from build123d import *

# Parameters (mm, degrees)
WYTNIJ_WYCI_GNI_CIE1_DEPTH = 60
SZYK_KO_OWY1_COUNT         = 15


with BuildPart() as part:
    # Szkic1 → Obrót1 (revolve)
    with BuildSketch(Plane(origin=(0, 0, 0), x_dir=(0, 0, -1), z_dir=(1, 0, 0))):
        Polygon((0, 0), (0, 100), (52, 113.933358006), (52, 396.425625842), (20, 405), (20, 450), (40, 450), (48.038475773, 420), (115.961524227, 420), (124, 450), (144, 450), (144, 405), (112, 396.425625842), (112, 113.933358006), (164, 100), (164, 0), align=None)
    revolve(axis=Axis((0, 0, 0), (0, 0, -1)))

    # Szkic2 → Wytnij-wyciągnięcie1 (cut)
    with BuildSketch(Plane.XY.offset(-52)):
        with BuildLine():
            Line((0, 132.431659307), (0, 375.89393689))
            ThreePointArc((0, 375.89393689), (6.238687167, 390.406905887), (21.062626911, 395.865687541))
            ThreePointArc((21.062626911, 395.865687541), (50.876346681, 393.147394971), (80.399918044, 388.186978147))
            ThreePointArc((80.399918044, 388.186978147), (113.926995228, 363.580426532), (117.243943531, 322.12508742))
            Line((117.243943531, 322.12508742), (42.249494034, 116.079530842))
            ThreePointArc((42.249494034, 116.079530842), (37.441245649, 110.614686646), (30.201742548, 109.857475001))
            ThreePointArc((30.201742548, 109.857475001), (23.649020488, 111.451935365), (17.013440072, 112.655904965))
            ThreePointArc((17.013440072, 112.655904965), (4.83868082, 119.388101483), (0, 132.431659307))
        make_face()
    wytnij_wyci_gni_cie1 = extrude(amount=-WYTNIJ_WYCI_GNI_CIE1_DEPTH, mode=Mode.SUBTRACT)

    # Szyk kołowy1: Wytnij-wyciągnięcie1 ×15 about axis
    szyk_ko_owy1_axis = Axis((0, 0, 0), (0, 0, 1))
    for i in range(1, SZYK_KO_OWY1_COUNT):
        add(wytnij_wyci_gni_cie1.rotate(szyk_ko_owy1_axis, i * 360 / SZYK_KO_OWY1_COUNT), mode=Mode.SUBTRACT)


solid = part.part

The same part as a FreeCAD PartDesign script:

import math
import FreeCAD as App
import Part
import Sketcher
Q = App.Units.Quantity


def add_polygon(sketch, points):
    """Adds a closed chain of lines whose ends are joined by coincident constraints."""
    first, n = sketch.GeometryCount, len(points)
    for a, b in zip(points, points[1:] + points[:1]):
        sketch.addGeometry(Part.LineSegment(App.Vector(*a, 0), App.Vector(*b, 0)), False)
    for i in range(n):
        sketch.addConstraint(Sketcher.Constraint("Coincident", first + i, 2, first + (i + 1) % n, 1))

doc = App.newDocument("Part")
body = doc.addObject("PartDesign::Body", "Body")

# Sketch on YZ plane
sketch1 = body.newObject("Sketcher::SketchObject", "Sketch")
sketch1.AttachmentSupport = (doc.getObject("YZ_Plane"), [""])
sketch1.MapMode = "FlatFace"
add_polygon(sketch1, [(100, 0), (0, 0), (0, -164), (100, -164), (114, -112), (396, -112), (405, -144), (450, -144), (450, -124), (420, -116), (420, -48), (450, -40), (450, -20), (405, -20), (396, -52), (114, -52)])  # lines 0-15
sketch1.addConstraint(Sketcher.Constraint("Horizontal", 0))
sketch1.addConstraint(Sketcher.Constraint("Vertical", 1))
sketch1.addConstraint(Sketcher.Constraint("Horizontal", 2))
sketch1.addConstraint(Sketcher.Constraint("Horizontal", 4))
sketch1.addConstraint(Sketcher.Constraint("Horizontal", 6))
sketch1.addConstraint(Sketcher.Constraint("Vertical", 7))
sketch1.addConstraint(Sketcher.Constraint("Vertical", 9))
sketch1.addConstraint(Sketcher.Constraint("Vertical", 11))
sketch1.addConstraint(Sketcher.Constraint("Horizontal", 12))
sketch1.addConstraint(Sketcher.Constraint("Horizontal", 14))
sketch1.addConstraint(Sketcher.Constraint("Coincident", 0, 2, -1, 1))
sketch1.addConstraint(Sketcher.Constraint("Perpendicular", 3, 8))
sketch1.addConstraint(Sketcher.Constraint("Perpendicular", 5, 10))
sketch1.addConstraint(Sketcher.Constraint("Perpendicular", 8, 13))
sketch1.addConstraint(Sketcher.Constraint("Perpendicular", 10, 15))
sketch1.addConstraint(Sketcher.Constraint("Vertical", 7, 2, 10, 2))
sketch1.addConstraint(Sketcher.Constraint("Vertical", 5, 2, 12, 2))
sketch1.addConstraint(Sketcher.Constraint("Vertical", 4, 2, 13, 2))
sketch1.addConstraint(Sketcher.Constraint("Vertical", 3, 2, 14, 2))
sketch1.addConstraint(Sketcher.Constraint("Vertical", 2, 2, 15, 2))
sketch1.addConstraint(Sketcher.Constraint("Equal", 7, 11))
sketch1.addConstraint(Sketcher.Constraint("Equal", 8, 10))
sketch1.addConstraint(Sketcher.Constraint("DistanceX", 0, 2, 0, 1, Q("100 mm")))
sketch1.addConstraint(Sketcher.Constraint("DistanceX", 6, 1, 6, 2, Q("45 mm")))
sketch1.addConstraint(Sketcher.Constraint("DistanceY", 1, 2, 1, 1, Q("164 mm")))
sketch1.addConstraint(Sketcher.Constraint("DistanceY", 7, 1, 7, 2, Q("20 mm")))
sketch1.addConstraint(Sketcher.Constraint("Angle", 3, Q("75 deg")))
sketch1.addConstraint(Sketcher.Constraint("DistanceY", 3, 2, -1, 1, Q("112 mm")))
sketch1.addConstraint(Sketcher.Constraint("DistanceX", -1, 1, 5, 2, Q("405 mm")))
sketch1.addConstraint(Sketcher.Constraint("DistanceY", 5, 2, -1, 1, Q("144 mm")))
sketch1.addConstraint(Sketcher.Constraint("DistanceX", -1, 1, 8, 2, Q("420 mm")))
revolution = body.newObject("PartDesign::Revolution", "Revolution")
revolution.Profile = sketch1
revolution.ReferenceAxis = (sketch1, ["V_Axis"])
revolution.Angle = 360

# Sketch on XY plane
sketch2 = body.newObject("Sketcher::SketchObject", "Sketch001")
sketch2.AttachmentSupport = (doc.getObject("XY_Plane"), [""])
sketch2.MapMode = "FlatFace"
sketch2.AttachmentOffset = App.Placement(App.Vector(0, 0, -52), App.Rotation())
sketch2.addGeometry(Part.LineSegment(App.Vector(0, 376, 0), App.Vector(0, 132, 0)), False)
sketch2.addGeometry(Part.ArcOfCircle(Part.Circle(App.Vector(20, 132, 0), App.Vector(0, 0, 1), 20), math.radians(-180), math.radians(-99)), False)
sketch2.addGeometry(Part.ArcOfCircle(Part.Circle(App.Vector(0, 0, 0), App.Vector(0, 0, 1), 114), math.radians(74.63), math.radians(81.41)), False)
sketch2.addGeometry(Part.ArcOfCircle(Part.Circle(App.Vector(33, 119, 0), App.Vector(0, 0, 1), 10), math.radians(-105), math.radians(-20)), False)
sketch2.addGeometry(Part.LineSegment(App.Vector(42, 116, 0), App.Vector(117, 322, 0)), False)
sketch2.addGeometry(Part.ArcOfCircle(Part.Circle(App.Vector(70, 339, 0), App.Vector(0, 0, 1), 50), math.radians(-20), math.radians(78)), False)
sketch2.addGeometry(Part.ArcOfCircle(Part.Circle(App.Vector(0, 0, 0), App.Vector(0, 0, 1), 396), math.radians(78.3), math.radians(86.95)), False)
sketch2.addGeometry(Part.ArcOfCircle(Part.Circle(App.Vector(20, 376, 0), App.Vector(0, 0, 1), 20), math.radians(87), math.radians(180)), False)
sketch2.addConstraint(Sketcher.Constraint("Tangent", 0, 2, 1, 1))
sketch2.addConstraint(Sketcher.Constraint("Tangent", 1, 2, 2, 2))
sketch2.addConstraint(Sketcher.Constraint("Tangent", 2, 1, 3, 1))
sketch2.addConstraint(Sketcher.Constraint("Tangent", 3, 2, 4, 1))
sketch2.addConstraint(Sketcher.Constraint("Tangent", 4, 2, 5, 1))
sketch2.addConstraint(Sketcher.Constraint("Tangent", 5, 2, 6, 1))
sketch2.addConstraint(Sketcher.Constraint("Tangent", 6, 2, 7, 1))
sketch2.addConstraint(Sketcher.Constraint("Tangent", 7, 2, 0, 1))
sketch2.addConstraint(Sketcher.Constraint("Vertical", 0))
sketch2.addConstraint(Sketcher.Constraint("Coincident", 2, 3, -1, 1))
sketch2.addConstraint(Sketcher.Constraint("Coincident", 6, 3, -1, 1))
sketch2.addConstraint(Sketcher.Constraint("Equal", 1, 7))
sketch2.addConstraint(Sketcher.Constraint("PointOnObject", 0, 2, -2))
sketch2.addConstraint(Sketcher.Constraint("Radius", 1, Q("20 mm")))
sketch2.addConstraint(Sketcher.Constraint("Radius", 3, Q("10 mm")))
sketch2.addConstraint(Sketcher.Constraint("Radius", 5, Q("50 mm")))
sketch2.addConstraint(Sketcher.Constraint("Angle", 4, Q("70 deg")))
sketch2.addConstraint(Sketcher.Constraint("Radius", 2, Q("113.933358 mm")))
sketch2.addConstraint(Sketcher.Constraint("Radius", 6, Q("396.425626 mm")))
sketch2.addConstraint(Sketcher.Constraint("Distance", 4, Q("219.269101 mm")))
pocket1 = body.newObject("PartDesign::Pocket", "Pocket")
pocket1.Profile = sketch2
pocket1.Length = 60
doc.recompute()

polarpattern = body.newObject("PartDesign::PolarPattern", "PolarPattern")
polarpattern.Originals = [pocket1]
polarpattern.Axis = (doc.getObject("Z_Axis"), [""])
polarpattern.Angle = 360
polarpattern.Occurrences = 15
body.Tip = polarpattern

doc.recompute()
